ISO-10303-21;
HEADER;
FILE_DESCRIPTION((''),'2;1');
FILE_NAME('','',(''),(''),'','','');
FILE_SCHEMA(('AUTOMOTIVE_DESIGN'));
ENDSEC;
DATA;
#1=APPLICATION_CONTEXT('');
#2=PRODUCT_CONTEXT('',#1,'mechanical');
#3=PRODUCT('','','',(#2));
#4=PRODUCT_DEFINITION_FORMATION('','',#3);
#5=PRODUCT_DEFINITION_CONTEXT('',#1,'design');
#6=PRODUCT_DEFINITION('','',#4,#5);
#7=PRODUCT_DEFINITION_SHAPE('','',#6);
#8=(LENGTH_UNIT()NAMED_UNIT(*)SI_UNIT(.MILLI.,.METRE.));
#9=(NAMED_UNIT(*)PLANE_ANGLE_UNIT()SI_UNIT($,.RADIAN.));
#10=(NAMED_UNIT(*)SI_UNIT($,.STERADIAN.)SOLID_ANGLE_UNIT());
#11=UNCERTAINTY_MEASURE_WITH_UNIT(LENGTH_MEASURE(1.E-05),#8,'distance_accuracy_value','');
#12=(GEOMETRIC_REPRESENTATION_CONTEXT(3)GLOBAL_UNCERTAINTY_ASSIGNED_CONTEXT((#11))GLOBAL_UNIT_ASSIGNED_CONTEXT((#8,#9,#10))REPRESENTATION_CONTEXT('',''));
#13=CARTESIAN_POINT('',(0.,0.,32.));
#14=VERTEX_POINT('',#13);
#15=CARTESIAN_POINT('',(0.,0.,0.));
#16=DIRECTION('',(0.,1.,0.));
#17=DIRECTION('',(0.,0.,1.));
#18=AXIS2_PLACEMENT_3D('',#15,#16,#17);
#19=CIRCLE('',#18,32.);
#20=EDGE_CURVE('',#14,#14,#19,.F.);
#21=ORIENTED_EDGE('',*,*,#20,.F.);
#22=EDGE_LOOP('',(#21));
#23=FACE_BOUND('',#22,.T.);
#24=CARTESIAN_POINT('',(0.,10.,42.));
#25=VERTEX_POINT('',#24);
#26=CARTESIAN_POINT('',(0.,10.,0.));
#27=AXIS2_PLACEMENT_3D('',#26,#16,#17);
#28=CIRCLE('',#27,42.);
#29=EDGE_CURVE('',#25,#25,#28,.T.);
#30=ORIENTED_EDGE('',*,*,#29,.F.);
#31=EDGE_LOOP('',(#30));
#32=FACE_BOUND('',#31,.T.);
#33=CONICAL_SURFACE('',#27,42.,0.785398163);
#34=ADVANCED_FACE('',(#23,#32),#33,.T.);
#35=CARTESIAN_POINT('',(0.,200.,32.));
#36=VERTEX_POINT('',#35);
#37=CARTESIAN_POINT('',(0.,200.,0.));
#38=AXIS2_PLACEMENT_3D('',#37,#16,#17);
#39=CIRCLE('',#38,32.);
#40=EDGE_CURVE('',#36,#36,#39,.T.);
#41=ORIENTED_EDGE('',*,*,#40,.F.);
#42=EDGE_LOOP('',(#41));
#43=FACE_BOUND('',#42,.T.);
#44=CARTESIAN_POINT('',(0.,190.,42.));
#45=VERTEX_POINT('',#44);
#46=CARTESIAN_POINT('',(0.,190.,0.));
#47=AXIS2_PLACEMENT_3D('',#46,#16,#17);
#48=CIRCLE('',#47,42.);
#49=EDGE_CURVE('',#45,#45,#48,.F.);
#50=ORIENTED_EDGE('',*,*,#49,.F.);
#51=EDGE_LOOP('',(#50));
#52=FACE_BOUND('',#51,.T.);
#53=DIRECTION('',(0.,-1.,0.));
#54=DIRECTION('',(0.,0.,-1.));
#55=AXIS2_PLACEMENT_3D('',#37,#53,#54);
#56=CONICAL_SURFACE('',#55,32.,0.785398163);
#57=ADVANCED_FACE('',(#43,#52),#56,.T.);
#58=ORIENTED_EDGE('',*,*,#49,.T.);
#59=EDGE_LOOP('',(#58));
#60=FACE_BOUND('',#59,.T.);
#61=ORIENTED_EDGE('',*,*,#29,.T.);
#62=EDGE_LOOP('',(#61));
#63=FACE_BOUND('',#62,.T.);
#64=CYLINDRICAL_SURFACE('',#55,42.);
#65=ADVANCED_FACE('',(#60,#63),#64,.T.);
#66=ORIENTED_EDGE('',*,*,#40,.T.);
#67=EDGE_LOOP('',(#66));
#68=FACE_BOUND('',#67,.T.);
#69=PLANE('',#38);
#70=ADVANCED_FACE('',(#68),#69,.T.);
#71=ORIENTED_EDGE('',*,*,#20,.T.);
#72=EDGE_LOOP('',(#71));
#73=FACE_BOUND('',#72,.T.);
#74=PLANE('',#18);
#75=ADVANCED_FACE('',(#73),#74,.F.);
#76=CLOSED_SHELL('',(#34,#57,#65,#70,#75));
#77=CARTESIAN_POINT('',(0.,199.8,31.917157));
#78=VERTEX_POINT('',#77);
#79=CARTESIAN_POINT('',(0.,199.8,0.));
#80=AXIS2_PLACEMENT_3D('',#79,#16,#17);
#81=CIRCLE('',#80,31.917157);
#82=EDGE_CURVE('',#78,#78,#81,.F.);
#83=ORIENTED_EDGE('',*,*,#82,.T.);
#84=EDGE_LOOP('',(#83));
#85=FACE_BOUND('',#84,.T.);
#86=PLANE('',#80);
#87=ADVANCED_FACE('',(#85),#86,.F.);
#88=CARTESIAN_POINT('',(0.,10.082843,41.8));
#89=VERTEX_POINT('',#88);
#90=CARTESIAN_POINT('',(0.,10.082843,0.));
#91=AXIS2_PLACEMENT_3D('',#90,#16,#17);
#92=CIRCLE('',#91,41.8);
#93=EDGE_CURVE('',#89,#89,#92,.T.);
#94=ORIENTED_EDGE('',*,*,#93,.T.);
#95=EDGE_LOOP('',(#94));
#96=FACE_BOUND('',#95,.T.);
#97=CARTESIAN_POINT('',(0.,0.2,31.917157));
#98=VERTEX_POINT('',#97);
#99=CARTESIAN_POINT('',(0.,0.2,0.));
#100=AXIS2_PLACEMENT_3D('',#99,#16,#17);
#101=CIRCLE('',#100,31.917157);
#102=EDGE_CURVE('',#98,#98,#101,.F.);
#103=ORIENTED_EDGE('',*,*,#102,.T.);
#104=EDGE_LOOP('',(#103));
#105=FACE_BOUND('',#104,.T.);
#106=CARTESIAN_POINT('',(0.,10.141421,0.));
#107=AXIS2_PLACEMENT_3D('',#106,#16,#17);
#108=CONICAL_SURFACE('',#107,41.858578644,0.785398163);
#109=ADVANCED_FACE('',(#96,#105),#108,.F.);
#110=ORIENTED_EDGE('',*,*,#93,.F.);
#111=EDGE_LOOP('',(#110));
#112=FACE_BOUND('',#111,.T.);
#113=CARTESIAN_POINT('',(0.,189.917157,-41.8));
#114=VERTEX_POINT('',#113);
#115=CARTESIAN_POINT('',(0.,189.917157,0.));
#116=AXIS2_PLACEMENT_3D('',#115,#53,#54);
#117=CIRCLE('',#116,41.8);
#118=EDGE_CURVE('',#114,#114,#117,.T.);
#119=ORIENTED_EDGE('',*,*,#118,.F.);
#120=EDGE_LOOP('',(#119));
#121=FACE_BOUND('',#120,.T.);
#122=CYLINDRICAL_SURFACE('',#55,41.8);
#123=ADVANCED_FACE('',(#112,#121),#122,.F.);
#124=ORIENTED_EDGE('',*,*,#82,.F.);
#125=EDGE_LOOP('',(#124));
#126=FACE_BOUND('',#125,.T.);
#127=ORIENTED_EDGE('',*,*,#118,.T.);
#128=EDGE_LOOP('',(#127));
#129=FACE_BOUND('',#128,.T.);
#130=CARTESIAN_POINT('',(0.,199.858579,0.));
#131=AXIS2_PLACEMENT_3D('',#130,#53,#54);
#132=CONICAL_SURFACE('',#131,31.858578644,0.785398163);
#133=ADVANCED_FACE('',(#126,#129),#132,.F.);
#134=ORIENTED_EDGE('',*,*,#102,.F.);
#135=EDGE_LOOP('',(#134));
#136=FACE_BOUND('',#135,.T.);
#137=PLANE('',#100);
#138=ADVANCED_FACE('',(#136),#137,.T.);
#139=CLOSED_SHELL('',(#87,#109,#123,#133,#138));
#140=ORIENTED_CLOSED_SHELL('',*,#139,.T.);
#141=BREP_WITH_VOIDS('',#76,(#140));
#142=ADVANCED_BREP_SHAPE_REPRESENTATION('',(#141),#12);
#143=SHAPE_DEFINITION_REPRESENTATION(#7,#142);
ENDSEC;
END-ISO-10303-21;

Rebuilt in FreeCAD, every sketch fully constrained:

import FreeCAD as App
import Part
import Sketcher

V = App.Vector
Q = App.Units.Quantity


def edges_at(feature, points):
    """Names of the edges that pass closest to the given points."""
    edges = feature.Shape.Edges
    near = lambda p: min(range(len(edges)), key=lambda i: edges[i].distToShape(Part.Vertex(*p))[0])
    return sorted({f"Edge{near(p) + 1}" for p in points})


def faces_at(feature, points):
    """Names of the faces that lie closest to the given points."""
    faces = feature.Shape.Faces
    near = lambda p: min(range(len(faces)), key=lambda i: faces[i].distToShape(Part.Vertex(*p))[0])
    return sorted({f"Face{near(p) + 1}" for p in points})

doc = App.newDocument("Part")
body = doc.addObject("PartDesign::Body", "Body")

# Sketch on XZ plane
sketch1 = body.newObject("Sketcher::SketchObject", "Sketch")
sketch1.AttachmentSupport = (doc.getObject("XZ_Plane"), [""])
sketch1.MapMode = "FlatFace"
sketch1.addGeometry(Part.Circle(V(0, 0, 0), V(0, 0, 1), 42), False)
sketch1.addConstraint(Sketcher.Constraint("Coincident", 0, 3, -1, 1))
sketch1.addConstraint(Sketcher.Constraint("Diameter", 0, Q("84 mm")))
pad1 = body.newObject("PartDesign::Pad", "Pad")
pad1.Profile = sketch1
pad1.Length = 200
pad1.Reversed = True
doc.recompute()

chamfer = body.newObject("PartDesign::Chamfer", "Chamfer")
chamfer.Base = (pad1, edges_at(pad1, [(0, 0, -42), (0, 200, -42)]))
chamfer.Size = 10
doc.recompute()

thickness = body.newObject("PartDesign::Thickness", "Thickness")
thickness.Base = (chamfer, faces_at(chamfer, [(0, 200, 0)]))
thickness.Value = 0.2
thickness.Reversed = True
thickness.Join = "Intersection"

# Sketch on XZ plane
sketch2 = body.newObject("Sketcher::SketchObject", "Sketch001")
sketch2.AttachmentSupport = (doc.getObject("XZ_Plane"), [""])
sketch2.MapMode = "FlatFace"
sketch2.AttachmentOffset = App.Placement(V(0, 0, -200), App.Rotation())
sketch2.addGeometry(Part.Circle(V(0, 0, 0), V(0, 0, 1), 32), False)
sketch2.addConstraint(Sketcher.Constraint("Coincident", 0, 3, -1, 1))
sketch2.addConstraint(Sketcher.Constraint("Diameter", 0, Q("64 mm")))
pad2 = body.newObject("PartDesign::Pad", "Pad001")
pad2.Profile = sketch2
pad2.Length = 0.2

doc.recompute()
